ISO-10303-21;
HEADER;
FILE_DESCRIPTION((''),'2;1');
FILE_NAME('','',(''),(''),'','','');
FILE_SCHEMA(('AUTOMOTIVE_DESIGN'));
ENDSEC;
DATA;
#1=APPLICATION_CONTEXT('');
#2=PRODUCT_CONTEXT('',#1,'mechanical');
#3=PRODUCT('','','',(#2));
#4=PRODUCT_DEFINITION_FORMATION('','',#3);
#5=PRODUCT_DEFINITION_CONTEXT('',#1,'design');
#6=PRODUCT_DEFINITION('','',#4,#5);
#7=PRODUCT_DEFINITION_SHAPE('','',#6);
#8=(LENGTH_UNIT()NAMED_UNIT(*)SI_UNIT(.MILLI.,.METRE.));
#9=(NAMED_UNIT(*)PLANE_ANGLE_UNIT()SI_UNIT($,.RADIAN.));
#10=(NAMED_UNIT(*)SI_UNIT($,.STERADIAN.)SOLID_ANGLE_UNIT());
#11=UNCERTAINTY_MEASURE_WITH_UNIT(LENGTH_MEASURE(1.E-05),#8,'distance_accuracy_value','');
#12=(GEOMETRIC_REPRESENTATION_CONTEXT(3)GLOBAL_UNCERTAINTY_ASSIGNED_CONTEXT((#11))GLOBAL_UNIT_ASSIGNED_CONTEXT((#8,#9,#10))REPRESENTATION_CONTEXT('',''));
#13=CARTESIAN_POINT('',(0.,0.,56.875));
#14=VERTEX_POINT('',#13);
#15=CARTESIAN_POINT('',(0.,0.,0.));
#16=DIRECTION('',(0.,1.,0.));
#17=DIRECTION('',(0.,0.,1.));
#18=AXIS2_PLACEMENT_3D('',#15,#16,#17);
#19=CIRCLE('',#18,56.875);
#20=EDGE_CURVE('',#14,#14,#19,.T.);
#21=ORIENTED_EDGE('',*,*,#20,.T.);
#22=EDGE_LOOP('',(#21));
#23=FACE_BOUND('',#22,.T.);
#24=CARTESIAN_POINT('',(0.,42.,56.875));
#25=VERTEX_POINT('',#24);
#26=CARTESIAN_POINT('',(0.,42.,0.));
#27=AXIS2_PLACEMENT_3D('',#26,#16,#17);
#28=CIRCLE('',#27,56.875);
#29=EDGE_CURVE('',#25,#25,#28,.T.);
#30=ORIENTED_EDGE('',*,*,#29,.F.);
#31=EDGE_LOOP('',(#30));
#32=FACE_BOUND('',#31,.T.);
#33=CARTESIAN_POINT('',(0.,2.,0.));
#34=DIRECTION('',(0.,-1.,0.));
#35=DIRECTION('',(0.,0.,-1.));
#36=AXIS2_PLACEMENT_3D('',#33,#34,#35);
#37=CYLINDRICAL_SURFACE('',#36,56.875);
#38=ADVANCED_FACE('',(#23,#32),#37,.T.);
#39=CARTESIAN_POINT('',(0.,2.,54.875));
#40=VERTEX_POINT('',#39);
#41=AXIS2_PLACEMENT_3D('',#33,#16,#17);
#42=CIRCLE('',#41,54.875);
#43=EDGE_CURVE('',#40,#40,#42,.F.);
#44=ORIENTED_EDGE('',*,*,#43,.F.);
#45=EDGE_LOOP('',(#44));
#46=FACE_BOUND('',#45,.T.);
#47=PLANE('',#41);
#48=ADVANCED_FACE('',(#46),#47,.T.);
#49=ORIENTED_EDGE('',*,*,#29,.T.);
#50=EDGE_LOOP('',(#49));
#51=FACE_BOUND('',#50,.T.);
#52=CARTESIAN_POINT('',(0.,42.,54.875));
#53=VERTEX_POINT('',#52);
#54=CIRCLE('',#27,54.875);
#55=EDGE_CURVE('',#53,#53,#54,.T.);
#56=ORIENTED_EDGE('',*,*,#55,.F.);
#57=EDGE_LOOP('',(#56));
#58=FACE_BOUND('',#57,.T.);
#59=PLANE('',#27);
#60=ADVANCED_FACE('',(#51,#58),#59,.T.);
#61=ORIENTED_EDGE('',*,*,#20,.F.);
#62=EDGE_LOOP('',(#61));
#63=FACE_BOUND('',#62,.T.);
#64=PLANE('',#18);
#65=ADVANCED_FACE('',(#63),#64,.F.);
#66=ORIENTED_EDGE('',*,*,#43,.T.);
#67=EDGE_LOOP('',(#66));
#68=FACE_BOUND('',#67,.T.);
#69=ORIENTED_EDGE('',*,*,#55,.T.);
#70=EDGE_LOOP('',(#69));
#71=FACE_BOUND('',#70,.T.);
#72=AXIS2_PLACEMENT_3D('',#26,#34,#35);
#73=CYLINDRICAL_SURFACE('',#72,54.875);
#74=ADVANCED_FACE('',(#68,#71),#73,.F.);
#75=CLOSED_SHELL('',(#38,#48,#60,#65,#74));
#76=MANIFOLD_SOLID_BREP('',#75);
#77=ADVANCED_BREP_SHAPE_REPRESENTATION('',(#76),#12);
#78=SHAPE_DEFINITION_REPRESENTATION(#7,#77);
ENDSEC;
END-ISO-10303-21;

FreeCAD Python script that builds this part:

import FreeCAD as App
import Part
import Sketcher

V = App.Vector
Q = App.Units.Quantity

doc = App.newDocument("Part")
body = doc.addObject("PartDesign::Body", "Body")

sketch1 = body.newObject("Sketcher::SketchObject", "Sketch")
sketch1.AttachmentSupport = (doc.getObject("XZ_Plane"), [""])
sketch1.MapMode = "FlatFace"
sketch1.addGeometry(Part.Circle(V(0, 0, 0), V(0, 0, 1), 57), False)
sketch1.addConstraint([
    Sketcher.Constraint("Coincident", 0, 3, -1, 1),
    Sketcher.Constraint("Diameter", 0, Q("113.75 mm")),
])
pad1 = body.newObject("PartDesign::Pad", "Pad")
pad1.Profile = sketch1
pad1.Length = 2
pad1.Reversed = True

sketch2 = body.newObject("Sketcher::SketchObject", "Sketch001")
sketch2.AttachmentSupport = (doc.getObject("XZ_Plane"), [""])
sketch2.MapMode = "FlatFace"
sketch2.AttachmentOffset = App.Placement(V(0, 0, -2), App.Rotation())
sketch2.addGeometry([
    Part.Circle(V(0, 0, 0), V(0, 0, 1), 57),
    Part.Circle(V(0, 0, 0), V(0, 0, 1), 55),
], False)
sketch2.addConstraint([
    Sketcher.Constraint("Coincident", 0, 3, -1, 1),
    Sketcher.Constraint("Coincident", 1, 3, -1, 1),
    Sketcher.Constraint("Diameter", 0, Q("113.75 mm")),
    Sketcher.Constraint("Diameter", 1, Q("109.75 mm")),
])
pad2 = body.newObject("PartDesign::Pad", "Pad001")
pad2.Profile = sketch2
pad2.Length = 40
pad2.Reversed = True

doc.recompute()
